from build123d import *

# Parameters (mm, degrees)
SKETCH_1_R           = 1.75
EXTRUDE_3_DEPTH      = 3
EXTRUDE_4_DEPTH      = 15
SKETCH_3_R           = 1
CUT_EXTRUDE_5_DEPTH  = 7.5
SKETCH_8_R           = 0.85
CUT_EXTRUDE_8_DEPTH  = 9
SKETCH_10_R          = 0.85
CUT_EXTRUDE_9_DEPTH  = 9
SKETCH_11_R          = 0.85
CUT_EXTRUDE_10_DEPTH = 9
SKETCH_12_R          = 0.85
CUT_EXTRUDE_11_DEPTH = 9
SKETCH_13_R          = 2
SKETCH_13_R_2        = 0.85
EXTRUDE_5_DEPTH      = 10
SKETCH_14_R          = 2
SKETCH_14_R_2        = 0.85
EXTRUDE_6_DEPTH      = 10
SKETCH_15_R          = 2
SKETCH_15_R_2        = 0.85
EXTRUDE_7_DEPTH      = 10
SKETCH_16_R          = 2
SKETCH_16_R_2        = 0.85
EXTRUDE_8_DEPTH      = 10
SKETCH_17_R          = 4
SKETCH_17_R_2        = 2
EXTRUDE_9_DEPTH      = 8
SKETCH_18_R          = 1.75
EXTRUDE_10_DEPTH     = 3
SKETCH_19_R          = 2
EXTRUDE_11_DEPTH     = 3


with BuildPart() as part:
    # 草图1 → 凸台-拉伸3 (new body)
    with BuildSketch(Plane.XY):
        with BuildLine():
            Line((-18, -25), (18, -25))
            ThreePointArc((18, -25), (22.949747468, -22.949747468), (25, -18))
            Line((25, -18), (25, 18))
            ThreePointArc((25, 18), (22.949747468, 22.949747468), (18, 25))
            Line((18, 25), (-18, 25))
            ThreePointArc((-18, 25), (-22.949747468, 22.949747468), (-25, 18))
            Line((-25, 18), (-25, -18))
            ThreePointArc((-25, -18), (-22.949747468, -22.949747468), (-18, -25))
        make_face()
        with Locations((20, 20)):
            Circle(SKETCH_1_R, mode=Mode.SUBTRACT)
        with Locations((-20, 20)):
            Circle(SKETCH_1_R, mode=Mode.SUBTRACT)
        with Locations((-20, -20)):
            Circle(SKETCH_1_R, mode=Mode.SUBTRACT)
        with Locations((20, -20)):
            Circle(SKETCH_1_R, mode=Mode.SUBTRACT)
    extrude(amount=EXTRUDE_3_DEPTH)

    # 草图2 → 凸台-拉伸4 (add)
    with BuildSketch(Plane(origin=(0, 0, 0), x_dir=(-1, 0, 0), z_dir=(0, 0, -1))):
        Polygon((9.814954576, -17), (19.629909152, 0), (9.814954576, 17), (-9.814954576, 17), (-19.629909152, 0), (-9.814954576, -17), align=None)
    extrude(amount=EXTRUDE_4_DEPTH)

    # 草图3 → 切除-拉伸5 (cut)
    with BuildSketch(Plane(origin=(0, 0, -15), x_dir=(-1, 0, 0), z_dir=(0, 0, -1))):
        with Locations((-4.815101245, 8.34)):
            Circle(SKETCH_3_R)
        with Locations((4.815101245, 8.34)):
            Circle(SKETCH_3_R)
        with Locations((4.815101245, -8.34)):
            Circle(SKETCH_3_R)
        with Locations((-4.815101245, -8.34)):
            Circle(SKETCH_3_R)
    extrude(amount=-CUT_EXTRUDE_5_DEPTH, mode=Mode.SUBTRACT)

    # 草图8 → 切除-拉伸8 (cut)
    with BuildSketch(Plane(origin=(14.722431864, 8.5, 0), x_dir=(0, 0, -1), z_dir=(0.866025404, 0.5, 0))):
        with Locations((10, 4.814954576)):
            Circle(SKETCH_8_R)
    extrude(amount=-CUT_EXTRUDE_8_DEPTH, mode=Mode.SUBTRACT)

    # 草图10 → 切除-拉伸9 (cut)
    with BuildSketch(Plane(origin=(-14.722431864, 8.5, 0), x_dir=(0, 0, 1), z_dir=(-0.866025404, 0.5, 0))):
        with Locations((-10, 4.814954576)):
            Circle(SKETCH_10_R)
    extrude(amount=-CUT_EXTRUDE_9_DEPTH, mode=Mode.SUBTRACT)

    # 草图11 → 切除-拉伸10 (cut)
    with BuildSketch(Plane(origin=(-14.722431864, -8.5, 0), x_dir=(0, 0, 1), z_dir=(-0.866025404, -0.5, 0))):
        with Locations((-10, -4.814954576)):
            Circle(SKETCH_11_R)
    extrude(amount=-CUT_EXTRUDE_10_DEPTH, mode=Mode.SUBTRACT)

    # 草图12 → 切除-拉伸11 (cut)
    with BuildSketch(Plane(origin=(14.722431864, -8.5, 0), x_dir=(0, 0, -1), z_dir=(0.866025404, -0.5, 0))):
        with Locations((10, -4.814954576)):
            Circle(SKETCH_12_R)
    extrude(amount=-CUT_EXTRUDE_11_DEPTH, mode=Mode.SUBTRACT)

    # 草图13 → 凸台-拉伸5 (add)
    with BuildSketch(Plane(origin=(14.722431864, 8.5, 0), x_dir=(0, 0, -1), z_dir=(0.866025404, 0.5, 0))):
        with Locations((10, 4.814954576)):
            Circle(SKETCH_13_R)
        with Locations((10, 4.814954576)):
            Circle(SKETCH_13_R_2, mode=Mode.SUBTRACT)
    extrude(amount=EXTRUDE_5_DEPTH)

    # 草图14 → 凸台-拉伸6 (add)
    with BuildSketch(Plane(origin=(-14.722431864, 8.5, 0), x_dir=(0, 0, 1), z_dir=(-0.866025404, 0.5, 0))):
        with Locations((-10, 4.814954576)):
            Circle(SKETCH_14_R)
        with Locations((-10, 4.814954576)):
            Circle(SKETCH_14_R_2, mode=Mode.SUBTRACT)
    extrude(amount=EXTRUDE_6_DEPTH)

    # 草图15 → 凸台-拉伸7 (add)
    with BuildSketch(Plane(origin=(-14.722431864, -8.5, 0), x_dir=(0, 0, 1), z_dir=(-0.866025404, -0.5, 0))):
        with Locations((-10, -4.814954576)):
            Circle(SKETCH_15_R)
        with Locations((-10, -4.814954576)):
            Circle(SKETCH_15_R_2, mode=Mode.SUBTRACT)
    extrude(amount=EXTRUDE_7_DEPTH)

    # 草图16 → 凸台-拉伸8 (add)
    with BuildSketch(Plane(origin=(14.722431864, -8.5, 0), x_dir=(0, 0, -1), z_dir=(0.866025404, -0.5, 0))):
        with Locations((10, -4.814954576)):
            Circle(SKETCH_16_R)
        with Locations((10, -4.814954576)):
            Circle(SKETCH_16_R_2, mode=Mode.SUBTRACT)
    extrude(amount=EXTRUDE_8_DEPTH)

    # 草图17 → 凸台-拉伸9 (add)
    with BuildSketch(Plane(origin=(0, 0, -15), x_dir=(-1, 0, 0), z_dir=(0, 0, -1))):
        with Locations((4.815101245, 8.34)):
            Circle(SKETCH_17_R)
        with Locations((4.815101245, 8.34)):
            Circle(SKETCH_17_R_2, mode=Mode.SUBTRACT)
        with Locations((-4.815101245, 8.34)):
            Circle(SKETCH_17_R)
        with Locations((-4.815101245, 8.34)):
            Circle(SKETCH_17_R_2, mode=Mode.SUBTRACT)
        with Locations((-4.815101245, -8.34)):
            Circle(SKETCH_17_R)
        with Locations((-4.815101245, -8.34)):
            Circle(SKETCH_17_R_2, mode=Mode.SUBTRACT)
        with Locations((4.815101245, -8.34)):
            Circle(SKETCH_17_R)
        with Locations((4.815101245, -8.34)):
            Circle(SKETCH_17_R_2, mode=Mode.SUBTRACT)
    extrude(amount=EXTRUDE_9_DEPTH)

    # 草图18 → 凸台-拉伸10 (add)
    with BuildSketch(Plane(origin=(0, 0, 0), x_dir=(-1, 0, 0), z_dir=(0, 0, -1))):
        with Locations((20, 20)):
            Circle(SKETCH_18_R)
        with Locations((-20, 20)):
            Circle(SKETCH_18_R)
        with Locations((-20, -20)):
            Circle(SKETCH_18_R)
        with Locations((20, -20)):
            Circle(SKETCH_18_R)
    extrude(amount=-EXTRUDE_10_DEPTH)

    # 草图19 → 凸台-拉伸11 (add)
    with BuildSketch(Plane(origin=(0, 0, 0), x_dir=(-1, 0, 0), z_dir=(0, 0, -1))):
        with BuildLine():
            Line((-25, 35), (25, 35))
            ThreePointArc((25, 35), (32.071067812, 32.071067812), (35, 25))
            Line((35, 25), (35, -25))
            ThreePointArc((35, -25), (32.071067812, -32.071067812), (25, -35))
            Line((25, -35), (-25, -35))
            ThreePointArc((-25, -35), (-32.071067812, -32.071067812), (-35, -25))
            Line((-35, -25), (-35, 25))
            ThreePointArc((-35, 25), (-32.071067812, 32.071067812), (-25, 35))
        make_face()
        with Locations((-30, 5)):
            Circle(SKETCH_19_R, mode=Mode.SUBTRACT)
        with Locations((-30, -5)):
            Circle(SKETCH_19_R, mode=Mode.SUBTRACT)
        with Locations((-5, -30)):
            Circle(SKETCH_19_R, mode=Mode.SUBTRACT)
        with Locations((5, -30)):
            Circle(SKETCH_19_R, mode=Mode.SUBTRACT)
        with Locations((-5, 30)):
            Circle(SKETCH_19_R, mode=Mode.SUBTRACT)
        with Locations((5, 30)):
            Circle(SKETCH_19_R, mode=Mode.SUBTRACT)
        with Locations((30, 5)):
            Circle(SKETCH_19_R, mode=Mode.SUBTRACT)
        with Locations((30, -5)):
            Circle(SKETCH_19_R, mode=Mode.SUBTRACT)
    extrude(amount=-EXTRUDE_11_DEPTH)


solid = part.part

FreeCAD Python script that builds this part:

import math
import FreeCAD as App
import Part
import Sketcher

V = App.Vector
Q = App.Units.Quantity

doc = App.newDocument("Part")
body = doc.addObject("PartDesign::Body", "Body")

sketch1 = body.newObject("Sketcher::SketchObject", "Sketch")
sketch1.AttachmentSupport = (doc.getObject("XY_Plane"), [""])
sketch1.MapMode = "FlatFace"
sketch1.addGeometry([
    Part.LineSegment(V(-18, -25, 0), V(18, -25, 0)),
    Part.ArcOfCircle(Part.Circle(V(18, -18, 0), V(0, 0, 1), 7), math.radians(-90), math.radians(0)),
    Part.LineSegment(V(25, -18, 0), V(25, 18, 0)),
    Part.ArcOfCircle(Part.Circle(V(18, 18, 0), V(0, 0, 1), 7), math.radians(0), math.radians(90)),
    Part.LineSegment(V(18, 25, 0), V(-18, 25, 0)),
    Part.ArcOfCircle(Part.Circle(V(-18, 18, 0), V(0, 0, 1), 7), math.radians(90), math.radians(180)),
    Part.LineSegment(V(-25, 18, 0), V(-25, -18, 0)),
    Part.ArcOfCircle(Part.Circle(V(-18, -18, 0), V(0, 0, 1), 7), math.radians(-180), math.radians(-90)),
    Part.Circle(V(-20, -20, 0), V(0, 0, 1), 1.75),
    Part.Circle(V(20, -20, 0), V(0, 0, 1), 1.75),
    Part.Circle(V(-20, 20, 0), V(0, 0, 1), 1.75),
    Part.Circle(V(20, 20, 0), V(0, 0, 1), 1.75),
], False)
sketch1.addConstraint([
    Sketcher.Constraint("Tangent", 0, 2, 1, 1),
    Sketcher.Constraint("Tangent", 1, 2, 2, 1),
    Sketcher.Constraint("Tangent", 2, 2, 3, 1),
    Sketcher.Constraint("Tangent", 3, 2, 4, 1),
    Sketcher.Constraint("Tangent", 4, 2, 5, 1),
    Sketcher.Constraint("Tangent", 5, 2, 6, 1),
    Sketcher.Constraint("Tangent", 6, 2, 7, 1),
    Sketcher.Constraint("Tangent", 7, 2, 0, 1),
    Sketcher.Constraint("Horizontal", 0),
    Sketcher.Constraint("Vertical", 2),
    Sketcher.Constraint("Horizontal", 4),
    Sketcher.Constraint("Vertical", 6),
    Sketcher.Constraint("Equal", 1, 3),
    Sketcher.Constraint("Equal", 3, 5),
    Sketcher.Constraint("Equal", 5, 7),
    Sketcher.Constraint("Equal", 8, 9),
    Sketcher.Constraint("Equal", 9, 10),
    Sketcher.Constraint("Equal", 10, 11),
    Sketcher.Constraint("Symmetric", 1, 3, 5, 3, -1, 1),
    Sketcher.Constraint("Symmetric", 9, 3, 10, 3, -1, 1),
    Sketcher.Constraint("Symmetric", 8, 3, 11, 3, -1, 1),
    Sketcher.Constraint("Symmetric", 8, 3, 9, 3, -2),
    Sketcher.Constraint("Equal", 4, 2),
    Sketcher.Constraint("Radius", 1, 7.0),
    Sketcher.Constraint("Diameter", 8, 3.5),
    Sketcher.Constraint("DistanceX", 0, 1, 0, 2, 36.0),
    Sketcher.Constraint("DistanceX", 8, 3, -1, 1, 20.0),
    Sketcher.Constraint("DistanceY", 8, 3, -1, 1, 20.0),
])
pad1 = body.newObject("PartDesign::Pad", "Pad")
pad1.Profile = sketch1
pad1.Length = 3

sketch2 = body.newObject("Sketcher::SketchObject", "Sketch001")
sketch2.AttachmentSupport = (doc.getObject("XY_Plane"), [""])
sketch2.MapMode = "FlatFace"
sketch2.addGeometry([
    Part.LineSegment(V(-9.814955, -17, 0), V(-19.629909, 0, 0)),
    Part.LineSegment(V(-19.629909, 0, 0), V(-9.814955, 17, 0)),
    Part.LineSegment(V(-9.814955, 17, 0), V(9.814955, 17, 0)),
    Part.LineSegment(V(9.814955, 17, 0), V(19.629909, 0, 0)),
    Part.LineSegment(V(19.629909, 0, 0), V(9.814955, -17, 0)),
    Part.LineSegment(V(9.814955, -17, 0), V(-9.814955, -17, 0)),
], False)
sketch2.addConstraint([
    Sketcher.Constraint("Coincident", 0, 2, 1, 1),
    Sketcher.Constraint("Coincident", 1, 2, 2, 1),
    Sketcher.Constraint("Coincident", 2, 2, 3, 1),
    Sketcher.Constraint("Coincident", 3, 2, 4, 1),
    Sketcher.Constraint("Coincident", 4, 2, 5, 1),
    Sketcher.Constraint("Coincident", 5, 2, 0, 1),
    Sketcher.Constraint("Horizontal", 2),
    Sketcher.Constraint("Horizontal", 5),
    Sketcher.Constraint("Symmetric", 0, 2, 3, 2, -1, 1),
    Sketcher.Constraint("Symmetric", 1, 2, 4, 2, -1, 1),
    Sketcher.Constraint("PointOnObject", 0, 2, -1),
    Sketcher.Constraint("Parallel", 0, 3),
    Sketcher.Constraint("Vertical", 2, 2, 4, 2),
    Sketcher.Constraint("Angle", 0, Q("120 deg")),
    Sketcher.Constraint("DistanceY", -1, 1, 1, 2, 17.0),
    Sketcher.Constraint("DistanceX", 2, 1, 2, 2, 19.629909),
])
pad2 = body.newObject("PartDesign::Pad", "Pad001")
pad2.Profile = sketch2
pad2.Length = 15
pad2.Reversed = True

sketch3 = body.newObject("Sketcher::SketchObject", "Sketch002")
sketch3.AttachmentSupport = (doc.getObject("XY_Plane"), [""])
sketch3.MapMode = "FlatFace"
sketch3.AttachmentOffset = App.Placement(V(0, 0, -15), App.Rotation())
sketch3.addGeometry([
    Part.Circle(V(4.815101, 8.34, 0), V(0, 0, 1), 1),
    Part.Circle(V(-4.815101, 8.34, 0), V(0, 0, 1), 1),
    Part.Circle(V(-4.815101, -8.34, 0), V(0, 0, 1), 1),
    Part.Circle(V(4.815101, -8.34, 0), V(0, 0, 1), 1),
], False)
sketch3.addConstraint([
    Sketcher.Constraint("Equal", 0, 1),
    Sketcher.Constraint("Equal", 1, 2),
    Sketcher.Constraint("Equal", 2, 3),
    Sketcher.Constraint("Symmetric", 0, 3, 2, 3, -1, 1),
    Sketcher.Constraint("Symmetric", 1, 3, 3, 3, -1, 1),
    Sketcher.Constraint("Symmetric", 0, 3, 1, 3, -2),
    Sketcher.Constraint("Diameter", 0, 2.0),
    Sketcher.Constraint("DistanceY", -1, 1, 0, 3, 8.34),
    Sketcher.Constraint("DistanceX", -1, 1, 0, 3, 4.815101),
])
pocket1 = body.newObject("PartDesign::Pocket", "Pocket")
pocket1.Profile = sketch3
pocket1.Length = 7.5
pocket1.Reversed = True

sketch4 = body.newObject("Sketcher::SketchObject", "Sketch003")
sketch4.Placement = App.Placement(V(14.722432, 8.5, 0), App.Rotation(V(0, 0, -1), V(-0.5, 0.866025404, 0), V(0.866025404, 0.5, 0), "ZXY"))
sketch4.addGeometry(Part.Circle(V(10, 4.814955, 0), V(0, 0, 1), 0.85), False)
sketch4.addConstraint([
    Sketcher.Constraint("Diameter", 0, 1.7),
    Sketcher.Constraint("DistanceX", -1, 1, 0, 3, 10.0),
    Sketcher.Constraint("DistanceY", -1, 1, 0, 3, 4.814955),
])
pocket2 = body.newObject("PartDesign::Pocket", "Pocket001")
pocket2.Profile = sketch4
pocket2.Length = 9

sketch5 = body.newObject("Sketcher::SketchObject", "Sketch004")
sketch5.Placement = App.Placement(V(-14.722432, 8.5, 0), App.Rotation(V(0, 0, 1), V(0.5, 0.866025404, 0), V(-0.866025404, 0.5, 0), "ZXY"))
sketch5.addGeometry(Part.Circle(V(-10, 4.814955, 0), V(0, 0, 1), 0.85), False)
sketch5.addConstraint([
    Sketcher.Constraint("Diameter", 0, 1.7),
    Sketcher.Constraint("DistanceX", 0, 3, -1, 1, 10.0),
    Sketcher.Constraint("DistanceY", -1, 1, 0, 3, 4.814955),
])
pocket3 = body.newObject("PartDesign::Pocket", "Pocket002")
pocket3.Profile = sketch5
pocket3.Length = 9

sketch6 = body.newObject("Sketcher::SketchObject", "Sketch005")
sketch6.Placement = App.Placement(V(-14.722432, -8.5, 0), App.Rotation(V(0, 0, 1), V(-0.5, 0.866025404, 0), V(-0.866025404, -0.5, 0), "ZXY"))
sketch6.addGeometry(Part.Circle(V(-10, -4.814955, 0), V(0, 0, 1), 0.85), False)
sketch6.addConstraint([
    Sketcher.Constraint("Diameter", 0, 1.7),
    Sketcher.Constraint("DistanceX", 0, 3, -1, 1, 10.0),
    Sketcher.Constraint("DistanceY", 0, 3, -1, 1, 4.814955),
])
pocket4 = body.newObject("PartDesign::Pocket", "Pocket003")
pocket4.Profile = sketch6
pocket4.Length = 9

sketch7 = body.newObject("Sketcher::SketchObject", "Sketch006")
sketch7.Placement = App.Placement(V(14.722432, -8.5, 0), App.Rotation(V(0, 0, -1), V(0.5, 0.866025404, 0), V(0.866025404, -0.5, 0), "ZXY"))
sketch7.addGeometry(Part.Circle(V(10, -4.814955, 0), V(0, 0, 1), 0.85), False)
sketch7.addConstraint([
    Sketcher.Constraint("Diameter", 0, 1.7),
    Sketcher.Constraint("DistanceX", -1, 1, 0, 3, 10.0),
    Sketcher.Constraint("DistanceY", 0, 3, -1, 1, 4.814955),
])
pocket5 = body.newObject("PartDesign::Pocket", "Pocket004")
pocket5.Profile = sketch7
pocket5.Length = 9

sketch8 = body.newObject("Sketcher::SketchObject", "Sketch007")
sketch8.Placement = App.Placement(V(14.722432, 8.5, 0), App.Rotation(V(0, 0, -1), V(-0.5, 0.866025404, 0), V(0.866025404, 0.5, 0), "ZXY"))
sketch8.addGeometry([
    Part.Circle(V(10, 4.814955, 0), V(0, 0, 1), 2),
    Part.Circle(V(10, 4.814955, 0), V(0, 0, 1), 0.85),
], False)
sketch8.addConstraint([
    Sketcher.Constraint("Coincident", 1, 3, 0, 3),
    Sketcher.Constraint("Diameter", 0, 4.0),
    Sketcher.Constraint("Diameter", 1, 1.7),
    Sketcher.Constraint("DistanceX", -1, 1, 0, 3, 10.0),
    Sketcher.Constraint("DistanceY", -1, 1, 0, 3, 4.814955),
])
pad3 = body.newObject("PartDesign::Pad", "Pad002")
pad3.Profile = sketch8
pad3.Length = 10

sketch9 = body.newObject("Sketcher::SketchObject", "Sketch008")
sketch9.Placement = App.Placement(V(-14.722432, 8.5, 0), App.Rotation(V(0, 0, 1), V(0.5, 0.866025404, 0), V(-0.866025404, 0.5, 0), "ZXY"))
sketch9.addGeometry([
    Part.Circle(V(-10, 4.814955, 0), V(0, 0, 1), 2),
    Part.Circle(V(-10, 4.814955, 0), V(0, 0, 1), 0.85),
], False)
sketch9.addConstraint([
    Sketcher.Constraint("Coincident", 1, 3, 0, 3),
    Sketcher.Constraint("Diameter", 0, 4.0),
    Sketcher.Constraint("Diameter", 1, 1.7),
    Sketcher.Constraint("DistanceX", 0, 3, -1, 1, 10.0),
    Sketcher.Constraint("DistanceY", -1, 1, 0, 3, 4.814955),
])
pad4 = body.newObject("PartDesign::Pad", "Pad003")
pad4.Profile = sketch9
pad4.Length = 10

sketch10 = body.newObject("Sketcher::SketchObject", "Sketch009")
sketch10.Placement = App.Placement(V(-14.722432, -8.5, 0), App.Rotation(V(0, 0, 1), V(-0.5, 0.866025404, 0), V(-0.866025404, -0.5, 0), "ZXY"))
sketch10.addGeometry([
    Part.Circle(V(-10, -4.814955, 0), V(0, 0, 1), 2),
    Part.Circle(V(-10, -4.814955, 0), V(0, 0, 1), 0.85),
], False)
sketch10.addConstraint([
    Sketcher.Constraint("Coincident", 1, 3, 0, 3),
    Sketcher.Constraint("Diameter", 0, 4.0),
    Sketcher.Constraint("Diameter", 1, 1.7),
    Sketcher.Constraint("DistanceX", 0, 3, -1, 1, 10.0),
    Sketcher.Constraint("DistanceY", 0, 3, -1, 1, 4.814955),
])
pad5 = body.newObject("PartDesign::Pad", "Pad004")
pad5.Profile = sketch10
pad5.Length = 10

sketch11 = body.newObject("Sketcher::SketchObject", "Sketch010")
sketch11.Placement = App.Placement(V(14.722432, -8.5, 0), App.Rotation(V(0, 0, -1), V(0.5, 0.866025404, 0), V(0.866025404, -0.5, 0), "ZXY"))
sketch11.addGeometry([
    Part.Circle(V(10, -4.814955, 0), V(0, 0, 1), 2),
    Part.Circle(V(10, -4.814955, 0), V(0, 0, 1), 0.85),
], False)
sketch11.addConstraint([
    Sketcher.Constraint("Coincident", 1, 3, 0, 3),
    Sketcher.Constraint("Diameter", 0, 4.0),
    Sketcher.Constraint("Diameter", 1, 1.7),
    Sketcher.Constraint("DistanceX", -1, 1, 0, 3, 10.0),
    Sketcher.Constraint("DistanceY", 0, 3, -1, 1, 4.814955),
])
pad6 = body.newObject("PartDesign::Pad", "Pad005")
pad6.Profile = sketch11
pad6.Length = 10

sketch12 = body.newObject("Sketcher::SketchObject", "Sketch011")
sketch12.AttachmentSupport = (doc.getObject("XY_Plane"), [""])
sketch12.MapMode = "FlatFace"
sketch12.AttachmentOffset = App.Placement(V(0, 0, -15), App.Rotation())
sketch12.addGeometry([
    Part.Circle(V(-4.815101, 8.34, 0), V(0, 0, 1), 4),
    Part.Circle(V(-4.815101, 8.34, 0), V(0, 0, 1), 2),
    Part.Circle(V(4.815101, 8.34, 0), V(0, 0, 1), 4),
    Part.Circle(V(4.815101, 8.34, 0), V(0, 0, 1), 2),
    Part.Circle(V(4.815101, -8.34, 0), V(0, 0, 1), 4),
    Part.Circle(V(4.815101, -8.34, 0), V(0, 0, 1), 2),
    Part.Circle(V(-4.815101, -8.34, 0), V(0, 0, 1), 4),
    Part.Circle(V(-4.815101, -8.34, 0), V(0, 0, 1), 2),
], False)
sketch12.addConstraint([
    Sketcher.Constraint("Coincident", 1, 3, 0, 3),
    Sketcher.Constraint("Coincident", 3, 3, 2, 3),
    Sketcher.Constraint("Coincident", 5, 3, 4, 3),
    Sketcher.Constraint("Coincident", 7, 3, 6, 3),
    Sketcher.Constraint("Equal", 0, 2),
    Sketcher.Constraint("Equal", 1, 3),
    Sketcher.Constraint("Equal", 2, 4),
    Sketcher.Constraint("Equal", 3, 5),
    Sketcher.Constraint("Equal", 4, 6),
    Sketcher.Constraint("Equal", 5, 7),
    Sketcher.Constraint("Symmetric", 0, 3, 4, 3, -1, 1),
    Sketcher.Constraint("Symmetric", 2, 3, 6, 3, -1, 1),
    Sketcher.Constraint("Symmetric", 0, 3, 2, 3, -2),
    Sketcher.Constraint("Diameter", 0, 8.0),
    Sketcher.Constraint("Diameter", 1, 4.0),
    Sketcher.Constraint("DistanceY", -1, 1, 0, 3, 8.34),
    Sketcher.Constraint("DistanceX", 0, 3, -1, 1, 4.815101),
])
pad7 = body.newObject("PartDesign::Pad", "Pad006")
pad7.Profile = sketch12
pad7.Length = 8
pad7.Reversed = True

sketch13 = body.newObject("Sketcher::SketchObject", "Sketch012")
sketch13.AttachmentSupport = (doc.getObject("XY_Plane"), [""])
sketch13.MapMode = "FlatFace"
sketch13.addGeometry([
    Part.Circle(V(-20, 20, 0), V(0, 0, 1), 1.75),
    Part.Circle(V(20, 20, 0), V(0, 0, 1), 1.75),
    Part.Circle(V(20, -20, 0), V(0, 0, 1), 1.75),
    Part.Circle(V(-20, -20, 0), V(0, 0, 1), 1.75),
], False)
sketch13.addConstraint([
    Sketcher.Constraint("Equal", 0, 1),
    Sketcher.Constraint("Equal", 1, 2),
    Sketcher.Constraint("Equal", 2, 3),
    Sketcher.Constraint("Symmetric", 0, 3, 2, 3, -1, 1),
    Sketcher.Constraint("Symmetric", 1, 3, 3, 3, -1, 1),
    Sketcher.Constraint("Symmetric", 0, 3, 1, 3, -2),
    Sketcher.Constraint("Diameter", 0, 3.5),
    Sketcher.Constraint("DistanceX", 0, 3, -1, 1, 20.0),
    Sketcher.Constraint("DistanceY", -1, 1, 0, 3, 20.0),
])
pad8 = body.newObject("PartDesign::Pad", "Pad007")
pad8.Profile = sketch13
pad8.Length = 3

sketch14 = body.newObject("Sketcher::SketchObject", "Sketch013")
sketch14.AttachmentSupport = (doc.getObject("XY_Plane"), [""])
sketch14.MapMode = "FlatFace"
sketch14.addGeometry([
    Part.LineSegment(V(-25, 35, 0), V(25, 35, 0)),
    Part.ArcOfCircle(Part.Circle(V(25, 25, 0), V(0, 0, 1), 10), math.radians(0), math.radians(90)),
    Part.LineSegment(V(35, 25, 0), V(35, -25, 0)),
    Part.ArcOfCircle(Part.Circle(V(25, -25, 0), V(0, 0, 1), 10), math.radians(-90), math.radians(0)),
    Part.LineSegment(V(25, -35, 0), V(-25, -35, 0)),
    Part.ArcOfCircle(Part.Circle(V(-25, -25, 0), V(0, 0, 1), 10), math.radians(180), math.radians(270)),
    Part.LineSegment(V(-35, -25, 0), V(-35, 25, 0)),
    Part.ArcOfCircle(Part.Circle(V(-25, 25, 0), V(0, 0, 1), 10), math.radians(90), math.radians(180)),
    Part.Circle(V(-5, -30, 0), V(0, 0, 1), 2),
    Part.Circle(V(-30, -5, 0), V(0, 0, 1), 2),
    Part.Circle(V(5, -30, 0), V(0, 0, 1), 2),
    Part.Circle(V(30, -5, 0), V(0, 0, 1), 2),
    Part.Circle(V(-30, 5, 0), V(0, 0, 1), 2),
    Part.Circle(V(-5, 30, 0), V(0, 0, 1), 2),
    Part.Circle(V(30, 5, 0), V(0, 0, 1), 2),
    Part.Circle(V(5, 30, 0), V(0, 0, 1), 2),
], False)
sketch14.addConstraint([
    Sketcher.Constraint("Tangent", 0, 2, 1, 2),
    Sketcher.Constraint("Tangent", 1, 1, 2, 1),
    Sketcher.Constraint("Tangent", 2, 2, 3, 2),
    Sketcher.Constraint("Tangent", 3, 1, 4, 1),
    Sketcher.Constraint("Tangent", 4, 2, 5, 2),
    Sketcher.Constraint("Tangent", 5, 1, 6, 1),
    Sketcher.Constraint("Tangent", 6, 2, 7, 2),
    Sketcher.Constraint("Tangent", 7, 1, 0, 1),
    Sketcher.Constraint("Horizontal", 0),
    Sketcher.Constraint("Vertical", 2),
    Sketcher.Constraint("Horizontal", 4),
    Sketcher.Constraint("Vertical", 6),
    Sketcher.Constraint("Equal", 1, 3),
    Sketcher.Constraint("Equal", 3, 5),
    Sketcher.Constraint("Equal", 5, 7),
    Sketcher.Constraint("Equal", 8, 9),
    Sketcher.Constraint("Equal", 9, 10),
    Sketcher.Constraint("Equal", 10, 11),
    Sketcher.Constraint("Equal", 11, 12),
    Sketcher.Constraint("Equal", 12, 13),
    Sketcher.Constraint("Equal", 13, 14),
    Sketcher.Constraint("Equal", 14, 15),
    Sketcher.Constraint("Symmetric", 1, 3, 5, 3, -1, 1),
    Sketcher.Constraint("Symmetric", 11, 3, 12, 3, -1, 1),
    Sketcher.Constraint("Symmetric", 10, 3, 13, 3, -1, 1),
    Sketcher.Constraint("Symmetric", 9, 3, 14, 3, -1, 1),
    Sketcher.Constraint("Symmetric", 8, 3, 15, 3, -1, 1),
    Sketcher.Constraint("Symmetric", 8, 3, 10, 3, -2),
    Sketcher.Constraint("Symmetric", 9, 3, 11, 3, -2),
    Sketcher.Constraint("Equal", 4, 2),
    Sketcher.Constraint("Diameter", 8, 4.0),
    Sketcher.Constraint("Radius", 1, 10.0),
    Sketcher.Constraint("DistanceX", 0, 1, 0, 2, 50.0),
    Sketcher.Constraint("DistanceX", 8, 3, -1, 1, 5.0),
    Sketcher.Constraint("DistanceY", 8, 3, -1, 1, 30.0),
    Sketcher.Constraint("DistanceX", 9, 3, -1, 1, 30.0),
    Sketcher.Constraint("DistanceY", 9, 3, -1, 1, 5.0),
])
pad9 = body.newObject("PartDesign::Pad", "Pad008")
pad9.Profile = sketch14
pad9.Length = 3

doc.recompute()
